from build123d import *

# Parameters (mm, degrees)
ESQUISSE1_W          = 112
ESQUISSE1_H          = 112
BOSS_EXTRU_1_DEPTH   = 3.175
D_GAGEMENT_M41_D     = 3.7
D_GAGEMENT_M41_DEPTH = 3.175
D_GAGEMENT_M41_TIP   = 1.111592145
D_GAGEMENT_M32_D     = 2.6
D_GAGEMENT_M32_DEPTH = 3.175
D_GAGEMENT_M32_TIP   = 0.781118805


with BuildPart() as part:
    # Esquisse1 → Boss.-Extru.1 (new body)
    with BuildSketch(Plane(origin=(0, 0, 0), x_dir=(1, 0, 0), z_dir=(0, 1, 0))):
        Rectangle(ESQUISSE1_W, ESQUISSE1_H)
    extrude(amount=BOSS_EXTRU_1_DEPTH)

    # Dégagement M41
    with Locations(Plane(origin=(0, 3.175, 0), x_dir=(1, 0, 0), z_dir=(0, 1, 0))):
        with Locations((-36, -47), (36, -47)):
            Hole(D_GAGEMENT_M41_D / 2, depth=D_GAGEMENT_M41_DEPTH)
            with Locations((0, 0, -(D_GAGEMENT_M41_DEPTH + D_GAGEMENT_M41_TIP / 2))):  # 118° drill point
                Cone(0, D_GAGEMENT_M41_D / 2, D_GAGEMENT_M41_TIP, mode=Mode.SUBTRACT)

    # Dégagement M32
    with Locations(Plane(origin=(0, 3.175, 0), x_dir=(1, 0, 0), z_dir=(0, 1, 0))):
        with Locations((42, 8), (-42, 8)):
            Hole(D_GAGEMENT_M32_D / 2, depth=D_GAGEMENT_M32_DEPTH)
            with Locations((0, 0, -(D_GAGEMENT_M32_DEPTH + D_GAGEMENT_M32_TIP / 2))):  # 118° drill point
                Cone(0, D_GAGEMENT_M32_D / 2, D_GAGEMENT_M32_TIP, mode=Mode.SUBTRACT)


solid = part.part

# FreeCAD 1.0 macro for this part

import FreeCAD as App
import Part
import Sketcher
from FreeCAD import Vector


def add_polygon(sketch, points):
    """Adds a closed chain of lines whose ends are joined by coincident constraints."""
    first, n = sketch.GeometryCount, len(points)
    for a, b in zip(points, points[1:] + points[:1]):
        sketch.addGeometry(Part.LineSegment(App.Vector(*a, 0), App.Vector(*b, 0)), False)
    for i in range(n):
        sketch.addConstraint(Sketcher.Constraint("Coincident", first + i, 2, first + (i + 1) % n, 1))

doc = App.newDocument("Part")
body = doc.addObject("PartDesign::Body", "Body")

# Sketch on XZ plane
sketch1 = body.newObject("Sketcher::SketchObject", "Sketch")
sketch1.AttachmentSupport = (doc.getObject("XZ_Plane"), [""])
sketch1.MapMode = "FlatFace"
add_polygon(sketch1, [(-56, -56), (-56, 56), (56, 56), (56, -56)])  # lines 0-3
sketch1.addConstraint([
    Sketcher.Constraint("Vertical", 0),
    Sketcher.Constraint("Horizontal", 1),
    Sketcher.Constraint("Vertical", 2),
    Sketcher.Constraint("Horizontal", 3),
    Sketcher.Constraint("Symmetric", 0, 2, 2, 2, -1, 1),
    Sketcher.Constraint("Equal", 3, 0),
    Sketcher.Constraint("DistanceX", 1, 1, 1, 2, 112.0),
])
pad1 = body.newObject("PartDesign::Pad", "Pad")
pad1.Profile = sketch1
pad1.Length = 3.175
pad1.Reversed = True

# Sketch on XZ plane
sketch2 = body.newObject("Sketcher::SketchObject", "Sketch001")
sketch2.AttachmentSupport = (doc.getObject("XZ_Plane"), [""])
sketch2.MapMode = "FlatFace"
sketch2.AttachmentOffset = App.Placement(Vector(0, 0, -3.175), App.Rotation())
sketch2.addGeometry([
    Part.Circle(Vector(-36, 47, 0), Vector(0, 0, 1), 1.9),
    Part.Circle(Vector(36, 47, 0), Vector(0, 0, 1), 1.9),
], False)
sketch2.addConstraint([
    Sketcher.Constraint("Equal", 0, 1),
    Sketcher.Constraint("Symmetric", 0, 3, 1, 3, -2),
    Sketcher.Constraint("Diameter", 0, 3.7),
    Sketcher.Constraint("DistanceX", 0, 3, -1, 1, 36.0),
    Sketcher.Constraint("DistanceY", -1, 1, 0, 3, 47.0),
])
doc.recompute()
hole = body.newObject("PartDesign::Hole", "Hole")
hole.Profile = sketch2
hole.ThreadType = "None"
hole.Diameter = 3.7
hole.DepthType = "Dimension"
hole.Depth = 3.175
hole.DrillPoint = "Angled"
hole.DrillPointAngle = 118
hole.Reversed = True

# Sketch on XZ plane
sketch3 = body.newObject("Sketcher::SketchObject", "Sketch002")
sketch3.AttachmentSupport = (doc.getObject("XZ_Plane"), [""])
sketch3.MapMode = "FlatFace"
sketch3.AttachmentOffset = App.Placement(Vector(0, 0, -3.175), App.Rotation())
sketch3.addGeometry([
    Part.Circle(Vector(42, -8, 0), Vector(0, 0, 1), 1.3),
    Part.Circle(Vector(-42, -8, 0), Vector(0, 0, 1), 1.3),
], False)
sketch3.addConstraint([
    Sketcher.Constraint("Equal", 0, 1),
    Sketcher.Constraint("Symmetric", 0, 3, 1, 3, -2),
    Sketcher.Constraint("Diameter", 0, 2.6),
    Sketcher.Constraint("DistanceX", -1, 1, 0, 3, 42.0),
    Sketcher.Constraint("DistanceY", 0, 3, -1, 1, 8.0),
])
doc.recompute()
hole2 = body.newObject("PartDesign::Hole", "Hole001")
hole2.Profile = sketch3
hole2.ThreadType = "None"
hole2.Diameter = 2.6
hole2.DepthType = "Dimension"
hole2.Depth = 3.175
hole2.DrillPoint = "Angled"
hole2.DrillPointAngle = 118
hole2.Reversed = True

doc.recompute()
